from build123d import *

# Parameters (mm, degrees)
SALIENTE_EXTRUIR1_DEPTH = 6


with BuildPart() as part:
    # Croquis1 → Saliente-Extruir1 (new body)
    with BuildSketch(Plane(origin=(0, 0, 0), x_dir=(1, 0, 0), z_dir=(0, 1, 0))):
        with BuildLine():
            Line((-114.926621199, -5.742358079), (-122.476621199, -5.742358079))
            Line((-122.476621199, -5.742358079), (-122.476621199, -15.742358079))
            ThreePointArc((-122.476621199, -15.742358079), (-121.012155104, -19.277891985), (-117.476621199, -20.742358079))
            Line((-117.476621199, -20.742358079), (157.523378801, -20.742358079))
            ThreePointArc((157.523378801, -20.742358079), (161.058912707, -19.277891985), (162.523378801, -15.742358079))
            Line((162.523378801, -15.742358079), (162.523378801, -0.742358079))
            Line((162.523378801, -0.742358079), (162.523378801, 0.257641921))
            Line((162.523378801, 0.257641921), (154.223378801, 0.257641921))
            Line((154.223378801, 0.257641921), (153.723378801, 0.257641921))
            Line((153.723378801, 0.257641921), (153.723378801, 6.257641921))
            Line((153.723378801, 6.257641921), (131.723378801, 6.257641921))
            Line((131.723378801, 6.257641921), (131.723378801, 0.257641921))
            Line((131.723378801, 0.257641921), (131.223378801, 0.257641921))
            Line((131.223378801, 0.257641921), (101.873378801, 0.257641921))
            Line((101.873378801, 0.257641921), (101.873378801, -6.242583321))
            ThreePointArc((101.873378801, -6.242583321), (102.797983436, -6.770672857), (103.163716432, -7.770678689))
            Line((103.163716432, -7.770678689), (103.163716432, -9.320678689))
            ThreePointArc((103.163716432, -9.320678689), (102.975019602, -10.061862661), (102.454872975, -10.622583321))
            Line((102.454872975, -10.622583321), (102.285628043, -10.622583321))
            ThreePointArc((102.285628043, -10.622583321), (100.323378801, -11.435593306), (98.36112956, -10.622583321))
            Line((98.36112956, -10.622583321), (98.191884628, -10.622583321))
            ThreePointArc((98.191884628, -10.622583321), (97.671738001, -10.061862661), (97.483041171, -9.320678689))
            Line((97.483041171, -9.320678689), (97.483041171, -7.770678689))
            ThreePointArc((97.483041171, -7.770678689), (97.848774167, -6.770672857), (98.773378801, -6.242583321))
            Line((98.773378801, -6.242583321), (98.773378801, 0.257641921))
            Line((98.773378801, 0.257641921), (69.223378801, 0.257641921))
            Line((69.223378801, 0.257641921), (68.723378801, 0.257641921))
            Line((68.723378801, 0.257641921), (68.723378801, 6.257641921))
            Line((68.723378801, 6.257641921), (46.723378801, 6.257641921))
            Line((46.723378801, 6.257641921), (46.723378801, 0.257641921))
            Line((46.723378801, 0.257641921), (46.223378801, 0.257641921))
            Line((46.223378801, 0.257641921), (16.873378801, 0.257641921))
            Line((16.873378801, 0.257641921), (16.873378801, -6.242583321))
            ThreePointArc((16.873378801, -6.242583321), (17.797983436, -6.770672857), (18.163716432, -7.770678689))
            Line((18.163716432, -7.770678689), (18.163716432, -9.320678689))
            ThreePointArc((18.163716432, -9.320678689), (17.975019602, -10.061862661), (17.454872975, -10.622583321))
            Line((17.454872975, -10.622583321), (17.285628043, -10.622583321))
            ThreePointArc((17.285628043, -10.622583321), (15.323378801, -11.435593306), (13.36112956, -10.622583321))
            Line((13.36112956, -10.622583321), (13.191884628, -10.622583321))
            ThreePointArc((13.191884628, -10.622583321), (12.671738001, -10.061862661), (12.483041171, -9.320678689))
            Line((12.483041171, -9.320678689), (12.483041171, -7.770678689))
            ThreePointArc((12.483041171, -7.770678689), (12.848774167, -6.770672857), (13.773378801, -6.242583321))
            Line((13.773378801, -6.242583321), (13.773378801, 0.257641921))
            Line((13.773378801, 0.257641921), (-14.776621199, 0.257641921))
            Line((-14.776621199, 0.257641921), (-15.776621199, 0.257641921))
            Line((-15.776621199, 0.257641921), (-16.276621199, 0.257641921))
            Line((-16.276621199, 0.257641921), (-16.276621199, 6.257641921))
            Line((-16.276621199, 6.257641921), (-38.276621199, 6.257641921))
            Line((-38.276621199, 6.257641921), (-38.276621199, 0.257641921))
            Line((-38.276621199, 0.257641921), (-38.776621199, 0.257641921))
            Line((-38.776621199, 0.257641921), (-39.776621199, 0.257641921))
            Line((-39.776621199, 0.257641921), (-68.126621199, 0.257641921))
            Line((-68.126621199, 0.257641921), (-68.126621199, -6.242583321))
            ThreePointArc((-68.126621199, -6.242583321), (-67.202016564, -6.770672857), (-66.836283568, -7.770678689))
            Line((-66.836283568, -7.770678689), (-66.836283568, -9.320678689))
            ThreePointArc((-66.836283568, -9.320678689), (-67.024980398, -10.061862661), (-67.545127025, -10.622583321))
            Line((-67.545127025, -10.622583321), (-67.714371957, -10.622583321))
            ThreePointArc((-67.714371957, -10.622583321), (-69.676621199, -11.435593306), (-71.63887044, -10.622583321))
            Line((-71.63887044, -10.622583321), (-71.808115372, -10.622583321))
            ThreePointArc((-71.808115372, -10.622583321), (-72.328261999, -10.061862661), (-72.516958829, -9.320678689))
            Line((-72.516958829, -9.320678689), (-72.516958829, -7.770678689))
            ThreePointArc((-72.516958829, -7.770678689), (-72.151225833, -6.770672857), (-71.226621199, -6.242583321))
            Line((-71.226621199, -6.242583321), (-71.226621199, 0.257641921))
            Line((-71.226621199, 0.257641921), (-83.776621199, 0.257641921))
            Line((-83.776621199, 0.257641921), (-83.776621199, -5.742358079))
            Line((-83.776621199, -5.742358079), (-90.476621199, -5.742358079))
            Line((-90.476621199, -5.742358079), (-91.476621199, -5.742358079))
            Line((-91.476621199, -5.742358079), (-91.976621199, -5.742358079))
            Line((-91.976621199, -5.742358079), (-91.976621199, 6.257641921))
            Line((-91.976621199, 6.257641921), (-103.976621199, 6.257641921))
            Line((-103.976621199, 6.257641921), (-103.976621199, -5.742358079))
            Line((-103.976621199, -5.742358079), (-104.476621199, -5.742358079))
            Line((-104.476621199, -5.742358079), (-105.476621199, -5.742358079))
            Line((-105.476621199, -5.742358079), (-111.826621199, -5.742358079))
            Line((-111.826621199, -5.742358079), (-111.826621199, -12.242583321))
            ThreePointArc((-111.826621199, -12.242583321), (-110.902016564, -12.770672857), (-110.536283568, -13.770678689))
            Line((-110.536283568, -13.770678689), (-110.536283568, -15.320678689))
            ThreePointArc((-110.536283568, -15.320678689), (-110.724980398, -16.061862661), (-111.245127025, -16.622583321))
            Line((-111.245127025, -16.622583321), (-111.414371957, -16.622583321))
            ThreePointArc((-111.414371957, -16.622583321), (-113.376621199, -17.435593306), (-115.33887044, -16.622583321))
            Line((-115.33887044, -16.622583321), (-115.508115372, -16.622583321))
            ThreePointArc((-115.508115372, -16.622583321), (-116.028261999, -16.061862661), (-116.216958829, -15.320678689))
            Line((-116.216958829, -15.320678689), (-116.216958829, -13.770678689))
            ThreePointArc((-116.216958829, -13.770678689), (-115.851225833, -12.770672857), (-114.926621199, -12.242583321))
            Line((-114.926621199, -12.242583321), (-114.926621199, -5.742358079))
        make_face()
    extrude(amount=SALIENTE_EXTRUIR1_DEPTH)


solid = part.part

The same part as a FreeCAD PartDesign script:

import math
import FreeCAD as App
import Part
import Sketcher
from FreeCAD import Vector

doc = App.newDocument("Part")
params = doc.addObject("Spreadsheet::Sheet", "Params")
for row, (alias, value) in enumerate([
    ("sketch1_radius", "5 mm"),
    ("sketch1_width", "275 mm"),
    ("sketch1_width2", "22 mm"),
    ("sketch1_width3", "12 mm"),
    ("sketch1_height", "10 mm"),
    ("pad1_length", "6 mm"),
], start=1):
    params.set(f"A{row}", alias)
    params.set(f"B{row}", "=" + value)
    params.setAlias(f"B{row}", alias)

body = doc.addObject("PartDesign::Body", "Body")

# Sketch on XZ plane
sketch1 = body.newObject("Sketcher::SketchObject", "Sketch")
sketch1.AttachmentSupport = (doc.getObject("XZ_Plane"), [""])
sketch1.MapMode = "FlatFace"
sketch1.addGeometry([
    Part.LineSegment(Vector(-114.93, 5.74, 0), Vector(-122.48, 5.74, 0)),  # 0
    Part.LineSegment(Vector(-122.48, 5.74, 0), Vector(-122.48, 15.74, 0)),  # 1
    Part.ArcOfCircle(Part.Circle(Vector(-117.48, 15.74, 0), Vector(0, 0, 1), 5), math.radians(90), math.radians(180)),  # 2
    Part.LineSegment(Vector(-117.48, 20.74, 0), Vector(157.52, 20.74, 0)),  # 3
    Part.ArcOfCircle(Part.Circle(Vector(157.52, 15.74, 0), Vector(0, 0, 1), 5), math.radians(0), math.radians(90)),  # 4
    Part.LineSegment(Vector(162.52, 15.74, 0), Vector(162.52, -0.26, 0)),  # 5
    Part.LineSegment(Vector(162.52, -0.26, 0), Vector(153.72, -0.26, 0)),  # 6
    Part.LineSegment(Vector(153.72, -0.26, 0), Vector(153.72, -6.26, 0)),  # 7
    Part.LineSegment(Vector(153.72, -6.26, 0), Vector(131.72, -6.26, 0)),  # 8
    Part.LineSegment(Vector(131.72, -6.26, 0), Vector(131.72, -0.26, 0)),  # 9
    Part.LineSegment(Vector(131.72, -0.26, 0), Vector(101.87, -0.26, 0)),  # 10
    Part.LineSegment(Vector(101.87, -0.26, 0), Vector(101.87, 6.24, 0)),  # 11
    Part.ArcOfCircle(Part.Circle(Vector(101.61, 7.77, 0), Vector(0, 0, 1), 1.55), math.radians(-80), math.radians(0)),  # 12
    Part.LineSegment(Vector(103.16, 7.77, 0), Vector(103.16, 9.32, 0)),  # 13
    Part.ArcOfCircle(Part.Circle(Vector(101.61, 9.32, 0), Vector(0, 0, 1), 1.55), math.radians(0), math.radians(57)),  # 14
    Part.LineSegment(Vector(102.45, 10.62, 0), Vector(102.29, 10.62, 0)),  # 15
    Part.ArcOfCircle(Part.Circle(Vector(100.32, 8.66, 0), Vector(0, 0, 1), 2.77), math.radians(45), math.radians(135)),  # 16
    Part.LineSegment(Vector(98.36, 10.62, 0), Vector(98.19, 10.62, 0)),  # 17
    Part.ArcOfCircle(Part.Circle(Vector(99.03, 9.32, 0), Vector(0, 0, 1), 1.55), math.radians(123), math.radians(180)),  # 18
    Part.LineSegment(Vector(97.48, 9.32, 0), Vector(97.48, 7.77, 0)),  # 19
    Part.ArcOfCircle(Part.Circle(Vector(99.03, 7.77, 0), Vector(0, 0, 1), 1.55), math.radians(180), math.radians(260)),  # 20
    Part.LineSegment(Vector(98.77, 6.24, 0), Vector(98.77, -0.26, 0)),  # 21
    Part.LineSegment(Vector(98.77, -0.26, 0), Vector(68.72, -0.26, 0)),  # 22
    Part.LineSegment(Vector(68.72, -0.26, 0), Vector(68.72, -6.26, 0)),  # 23
    Part.LineSegment(Vector(68.72, -6.26, 0), Vector(46.72, -6.26, 0)),  # 24
    Part.LineSegment(Vector(46.72, -6.26, 0), Vector(46.72, -0.26, 0)),  # 25
    Part.LineSegment(Vector(46.72, -0.26, 0), Vector(16.87, -0.26, 0)),  # 26
    Part.LineSegment(Vector(16.87, -0.26, 0), Vector(16.87, 6.24, 0)),  # 27
    Part.ArcOfCircle(Part.Circle(Vector(16.61, 7.77, 0), Vector(0, 0, 1), 1.55), math.radians(-80), math.radians(0)),  # 28
    Part.LineSegment(Vector(18.16, 7.77, 0), Vector(18.16, 9.32, 0)),  # 29
    Part.ArcOfCircle(Part.Circle(Vector(16.61, 9.32, 0), Vector(0, 0, 1), 1.55), math.radians(0), math.radians(57)),  # 30
    Part.LineSegment(Vector(17.45, 10.62, 0), Vector(17.29, 10.62, 0)),  # 31
    Part.ArcOfCircle(Part.Circle(Vector(15.32, 8.66, 0), Vector(0, 0, 1), 2.77), math.radians(45), math.radians(135)),  # 32
    Part.LineSegment(Vector(13.36, 10.62, 0), Vector(13.19, 10.62, 0)),  # 33
    Part.ArcOfCircle(Part.Circle(Vector(14.03, 9.32, 0), Vector(0, 0, 1), 1.55), math.radians(123), math.radians(180)),  # 34
    Part.LineSegment(Vector(12.48, 9.32, 0), Vector(12.48, 7.77, 0)),  # 35
    Part.ArcOfCircle(Part.Circle(Vector(14.03, 7.77, 0), Vector(0, 0, 1), 1.55), math.radians(180), math.radians(260)),  # 36
    Part.LineSegment(Vector(13.77, 6.24, 0), Vector(13.77, -0.26, 0)),  # 37
    Part.LineSegment(Vector(13.77, -0.26, 0), Vector(-16.28, -0.26, 0)),  # 38
    Part.LineSegment(Vector(-16.28, -0.26, 0), Vector(-16.28, -6.26, 0)),  # 39
    Part.LineSegment(Vector(-16.28, -6.26, 0), Vector(-38.28, -6.26, 0)),  # 40
    Part.LineSegment(Vector(-38.28, -6.26, 0), Vector(-38.28, -0.26, 0)),  # 41
    Part.LineSegment(Vector(-38.28, -0.26, 0), Vector(-68.13, -0.26, 0)),  # 42
    Part.LineSegment(Vector(-68.13, -0.26, 0), Vector(-68.13, 6.24, 0)),  # 43
    Part.ArcOfCircle(Part.Circle(Vector(-68.39, 7.77, 0), Vector(0, 0, 1), 1.55), math.radians(-80), math.radians(0)),  # 44
    Part.LineSegment(Vector(-66.84, 7.77, 0), Vector(-66.84, 9.32, 0)),  # 45
    Part.ArcOfCircle(Part.Circle(Vector(-68.39, 9.32, 0), Vector(0, 0, 1), 1.55), math.radians(0), math.radians(57)),  # 46
    Part.LineSegment(Vector(-67.55, 10.62, 0), Vector(-67.71, 10.62, 0)),  # 47
    Part.ArcOfCircle(Part.Circle(Vector(-69.68, 8.66, 0), Vector(0, 0, 1), 2.77), math.radians(45), math.radians(135)),  # 48
    Part.LineSegment(Vector(-71.64, 10.62, 0), Vector(-71.81, 10.62, 0)),  # 49
    Part.ArcOfCircle(Part.Circle(Vector(-70.97, 9.32, 0), Vector(0, 0, 1), 1.55), math.radians(123), math.radians(180)),  # 50
    Part.LineSegment(Vector(-72.52, 9.32, 0), Vector(-72.52, 7.77, 0)),  # 51
    Part.ArcOfCircle(Part.Circle(Vector(-70.97, 7.77, 0), Vector(0, 0, 1), 1.55), math.radians(180), math.radians(260)),  # 52
    Part.LineSegment(Vector(-71.23, 6.24, 0), Vector(-71.23, -0.26, 0)),  # 53
    Part.LineSegment(Vector(-71.23, -0.26, 0), Vector(-83.78, -0.26, 0)),  # 54
    Part.LineSegment(Vector(-83.78, -0.26, 0), Vector(-83.78, 5.74, 0)),  # 55
    Part.LineSegment(Vector(-83.78, 5.74, 0), Vector(-91.98, 5.74, 0)),  # 56
    Part.LineSegment(Vector(-91.98, 5.74, 0), Vector(-91.98, -6.26, 0)),  # 57
    Part.LineSegment(Vector(-91.98, -6.26, 0), Vector(-103.98, -6.26, 0)),  # 58
    Part.LineSegment(Vector(-103.98, -6.26, 0), Vector(-103.98, 5.74, 0)),  # 59
    Part.LineSegment(Vector(-103.98, 5.74, 0), Vector(-111.83, 5.74, 0)),  # 60
    Part.LineSegment(Vector(-111.83, 5.74, 0), Vector(-111.83, 12.24, 0)),  # 61
    Part.ArcOfCircle(Part.Circle(Vector(-112.09, 13.77, 0), Vector(0, 0, 1), 1.55), math.radians(-80), math.radians(0)),  # 62
    Part.LineSegment(Vector(-110.54, 13.77, 0), Vector(-110.54, 15.32, 0)),  # 63
    Part.ArcOfCircle(Part.Circle(Vector(-112.09, 15.32, 0), Vector(0, 0, 1), 1.55), math.radians(0), math.radians(57)),  # 64
    Part.LineSegment(Vector(-111.25, 16.62, 0), Vector(-111.41, 16.62, 0)),  # 65
    Part.ArcOfCircle(Part.Circle(Vector(-113.38, 14.66, 0), Vector(0, 0, 1), 2.77), math.radians(45), math.radians(135)),  # 66
    Part.LineSegment(Vector(-115.34, 16.62, 0), Vector(-115.51, 16.62, 0)),  # 67
    Part.ArcOfCircle(Part.Circle(Vector(-114.67, 15.32, 0), Vector(0, 0, 1), 1.55), math.radians(123), math.radians(180)),  # 68
    Part.LineSegment(Vector(-116.22, 15.32, 0), Vector(-116.22, 13.77, 0)),  # 69
    Part.ArcOfCircle(Part.Circle(Vector(-114.67, 13.77, 0), Vector(0, 0, 1), 1.55), math.radians(180), math.radians(260)),  # 70
    Part.LineSegment(Vector(-114.93, 12.24, 0), Vector(-114.93, 5.74, 0)),  # 71
], False)
sketch1.addConstraint([
    Sketcher.Constraint("Coincident", 0, 2, 1, 1),
    Sketcher.Constraint("Tangent", 1, 2, 2, 2),
    Sketcher.Constraint("Tangent", 2, 1, 3, 1),
    Sketcher.Constraint("Tangent", 3, 2, 4, 2),
    Sketcher.Constraint("Tangent", 4, 1, 5, 1),
    Sketcher.Constraint("Coincident", 5, 2, 6, 1),
    Sketcher.Constraint("Coincident", 6, 2, 7, 1),
    Sketcher.Constraint("Coincident", 7, 2, 8, 1),
    Sketcher.Constraint("Coincident", 8, 2, 9, 1),
    Sketcher.Constraint("Coincident", 9, 2, 10, 1),
    Sketcher.Constraint("Coincident", 10, 2, 11, 1),
    Sketcher.Constraint("Coincident", 11, 2, 12, 1),
    Sketcher.Constraint("Tangent", 12, 2, 13, 1),
    Sketcher.Constraint("Tangent", 13, 2, 14, 1),
    Sketcher.Constraint("Coincident", 14, 2, 15, 1),
    Sketcher.Constraint("Coincident", 15, 2, 16, 1),
    Sketcher.Constraint("Coincident", 16, 2, 17, 1),
    Sketcher.Constraint("Coincident", 17, 2, 18, 1),
    Sketcher.Constraint("Tangent", 18, 2, 19, 1),
    Sketcher.Constraint("Tangent", 19, 2, 20, 1),
    Sketcher.Constraint("Coincident", 20, 2, 21, 1),
    Sketcher.Constraint("Coincident", 21, 2, 22, 1),
    Sketcher.Constraint("Coincident", 22, 2, 23, 1),
    Sketcher.Constraint("Coincident", 23, 2, 24, 1),
    Sketcher.Constraint("Coincident", 24, 2, 25, 1),
    Sketcher.Constraint("Coincident", 25, 2, 26, 1),
    Sketcher.Constraint("Coincident", 26, 2, 27, 1),
    Sketcher.Constraint("Coincident", 27, 2, 28, 1),
    Sketcher.Constraint("Tangent", 28, 2, 29, 1),
    Sketcher.Constraint("Tangent", 29, 2, 30, 1),
    Sketcher.Constraint("Coincident", 30, 2, 31, 1),
    Sketcher.Constraint("Coincident", 31, 2, 32, 1),
    Sketcher.Constraint("Coincident", 32, 2, 33, 1),
    Sketcher.Constraint("Coincident", 33, 2, 34, 1),
    Sketcher.Constraint("Tangent", 34, 2, 35, 1),
    Sketcher.Constraint("Tangent", 35, 2, 36, 1),
    Sketcher.Constraint("Coincident", 36, 2, 37, 1),
    Sketcher.Constraint("Coincident", 37, 2, 38, 1),
    Sketcher.Constraint("Coincident", 38, 2, 39, 1),
    Sketcher.Constraint("Coincident", 39, 2, 40, 1),
    Sketcher.Constraint("Coincident", 40, 2, 41, 1),
    Sketcher.Constraint("Coincident", 41, 2, 42, 1),
    Sketcher.Constraint("Coincident", 42, 2, 43, 1),
    Sketcher.Constraint("Coincident", 43, 2, 44, 1),
    Sketcher.Constraint("Tangent", 44, 2, 45, 1),
    Sketcher.Constraint("Tangent", 45, 2, 46, 1),
    Sketcher.Constraint("Coincident", 46, 2, 47, 1),
    Sketcher.Constraint("Coincident", 47, 2, 48, 1),
    Sketcher.Constraint("Coincident", 48, 2, 49, 1),
    Sketcher.Constraint("Coincident", 49, 2, 50, 1),
    Sketcher.Constraint("Tangent", 50, 2, 51, 1),
    Sketcher.Constraint("Tangent", 51, 2, 52, 1),
    Sketcher.Constraint("Coincident", 52, 2, 53, 1),
    Sketcher.Constraint("Coincident", 53, 2, 54, 1),
    Sketcher.Constraint("Coincident", 54, 2, 55, 1),
    Sketcher.Constraint("Coincident", 55, 2, 56, 1),
    Sketcher.Constraint("Coincident", 56, 2, 57, 1),
    Sketcher.Constraint("Coincident", 57, 2, 58, 1),
    Sketcher.Constraint("Coincident", 58, 2, 59, 1),
    Sketcher.Constraint("Coincident", 59, 2, 60, 1),
    Sketcher.Constraint("Coincident", 60, 2, 61, 1),
    Sketcher.Constraint("Coincident", 61, 2, 62, 1),
    Sketcher.Constraint("Tangent", 62, 2, 63, 1),
    Sketcher.Constraint("Tangent", 63, 2, 64, 1),
    Sketcher.Constraint("Coincident", 64, 2, 65, 1),
    Sketcher.Constraint("Coincident", 65, 2, 66, 1),
    Sketcher.Constraint("Coincident", 66, 2, 67, 1),
    Sketcher.Constraint("Coincident", 67, 2, 68, 1),
    Sketcher.Constraint("Tangent", 68, 2, 69, 1),
    Sketcher.Constraint("Tangent", 69, 2, 70, 1),
    Sketcher.Constraint("Coincident", 70, 2, 71, 1),
    Sketcher.Constraint("Coincident", 71, 2, 0, 1),
    Sketcher.Constraint("Horizontal", 0),
    Sketcher.Constraint("Vertical", 1),
    Sketcher.Constraint("Horizontal", 3),
    Sketcher.Constraint("Vertical", 5),
    Sketcher.Constraint("Horizontal", 6),
    Sketcher.Constraint("Vertical", 7),
    Sketcher.Constraint("Horizontal", 8),
    Sketcher.Constraint("Vertical", 9),
    Sketcher.Constraint("Horizontal", 10),
    Sketcher.Constraint("Vertical", 11),
    Sketcher.Constraint("Vertical", 13),
    Sketcher.Constraint("Horizontal", 15),
    Sketcher.Constraint("Horizontal", 17),
    Sketcher.Constraint("Vertical", 19),
    Sketcher.Constraint("Vertical", 21),
    Sketcher.Constraint("Horizontal", 22),
    Sketcher.Constraint("Vertical", 23),
    Sketcher.Constraint("Horizontal", 24),
    Sketcher.Constraint("Vertical", 25),
    Sketcher.Constraint("Horizontal", 26),
    Sketcher.Constraint("Vertical", 27),
    Sketcher.Constraint("Vertical", 29),
    Sketcher.Constraint("Horizontal", 31),
    Sketcher.Constraint("Horizontal", 33),
    Sketcher.Constraint("Vertical", 35),
    Sketcher.Constraint("Vertical", 37),
    Sketcher.Constraint("Horizontal", 38),
    Sketcher.Constraint("Vertical", 39),
    Sketcher.Constraint("Horizontal", 40),
    Sketcher.Constraint("Vertical", 41),
    Sketcher.Constraint("Horizontal", 42),
    Sketcher.Constraint("Vertical", 43),
    Sketcher.Constraint("Vertical", 45),
    Sketcher.Constraint("Horizontal", 47),
    Sketcher.Constraint("Horizontal", 49),
    Sketcher.Constraint("Vertical", 51),
    Sketcher.Constraint("Vertical", 53),
    Sketcher.Constraint("Horizontal", 54),
    Sketcher.Constraint("Vertical", 55),
    Sketcher.Constraint("Horizontal", 56),
    Sketcher.Constraint("Vertical", 57),
    Sketcher.Constraint("Horizontal", 58),
    Sketcher.Constraint("Vertical", 59),
    Sketcher.Constraint("Horizontal", 60),
    Sketcher.Constraint("Vertical", 61),
    Sketcher.Constraint("Vertical", 63),
    Sketcher.Constraint("Horizontal", 65),
    Sketcher.Constraint("Horizontal", 67),
    Sketcher.Constraint("Vertical", 69),
    Sketcher.Constraint("Vertical", 71),
    Sketcher.Constraint("Equal", 2, 4),
    Sketcher.Constraint("Equal", 12, 14),
    Sketcher.Constraint("Equal", 14, 18),
    Sketcher.Constraint("Equal", 18, 20),
    Sketcher.Constraint("Equal", 20, 28),
    Sketcher.Constraint("Equal", 28, 30),
    Sketcher.Constraint("Equal", 16, 32),
    Sketcher.Constraint("Equal", 30, 34),
    Sketcher.Constraint("Equal", 34, 36),
    Sketcher.Constraint("Equal", 36, 44),
    Sketcher.Constraint("Equal", 44, 46),
    Sketcher.Constraint("Equal", 32, 48),
    Sketcher.Constraint("Equal", 46, 50),
    Sketcher.Constraint("Equal", 50, 52),
    Sketcher.Constraint("Equal", 52, 62),
    Sketcher.Constraint("Equal", 62, 64),
    Sketcher.Constraint("Equal", 48, 66),
    Sketcher.Constraint("Equal", 64, 68),
    Sketcher.Constraint("Equal", 68, 70),
    Sketcher.Constraint("Horizontal", 14, 3, 18, 3),
    Sketcher.Constraint("Horizontal", 12, 3, 20, 3),
    Sketcher.Constraint("Horizontal", 20, 3, 28, 3),
    Sketcher.Constraint("Horizontal", 18, 3, 30, 3),
    Sketcher.Constraint("Horizontal", 16, 3, 32, 3),
    Sketcher.Constraint("Horizontal", 30, 3, 34, 3),
    Sketcher.Constraint("Horizontal", 28, 3, 36, 3),
    Sketcher.Constraint("Horizontal", 36, 3, 44, 3),
    Sketcher.Constraint("Horizontal", 34, 3, 46, 3),
    Sketcher.Constraint("Horizontal", 32, 3, 48, 3),
    Sketcher.Constraint("Horizontal", 46, 3, 50, 3),
    Sketcher.Constraint("Horizontal", 44, 3, 52, 3),
    Sketcher.Constraint("Horizontal", 64, 3, 68, 3),
    Sketcher.Constraint("Horizontal", 62, 3, 70, 3),
    Sketcher.Constraint("Horizontal", 6, 2, 9, 2),
    Sketcher.Constraint("Horizontal", 15, 2, 16, 2),
    Sketcher.Constraint("Horizontal", 11, 2, 20, 2),
    Sketcher.Constraint("Horizontal", 10, 2, 21, 2),
    Sketcher.Constraint("Horizontal", 8, 2, 23, 2),
    Sketcher.Constraint("Horizontal", 22, 2, 25, 2),
    Sketcher.Constraint("Horizontal", 20, 2, 27, 2),
    Sketcher.Constraint("Horizontal", 17, 2, 30, 2),
    Sketcher.Constraint("Horizontal", 31, 2, 32, 2),
    Sketcher.Constraint("Horizontal", 27, 2, 36, 2),
    Sketcher.Constraint("Horizontal", 26, 2, 37, 2),
    Sketcher.Constraint("Horizontal", 24, 2, 39, 2),
    Sketcher.Constraint("Horizontal", 38, 2, 41, 2),
    Sketcher.Constraint("Horizontal", 36, 2, 43, 2),
    Sketcher.Constraint("Horizontal", 33, 2, 46, 2),
    Sketcher.Constraint("Horizontal", 47, 2, 48, 2),
    Sketcher.Constraint("Horizontal", 43, 2, 52, 2),
    Sketcher.Constraint("Horizontal", 42, 2, 53, 2),
    Sketcher.Constraint("Horizontal", 0, 2, 55, 2),
    Sketcher.Constraint("Horizontal", 40, 2, 57, 2),
    Sketcher.Constraint("Horizontal", 56, 2, 59, 2),
    Sketcher.Constraint("Horizontal", 65, 2, 66, 2),
    Sketcher.Constraint("Horizontal", 61, 2, 70, 2),
    Sketcher.Constraint("Equal", 15, 17),
    Sketcher.Constraint("Equal", 8, 24),
    Sketcher.Constraint("Equal", 10, 26),
    Sketcher.Constraint("Equal", 17, 31),
    Sketcher.Constraint("Equal", 31, 33),
    Sketcher.Constraint("Equal", 22, 38),
    Sketcher.Constraint("Equal", 24, 40),
    Sketcher.Constraint("Equal", 26, 42),
    Sketcher.Constraint("Equal", 33, 47),
    Sketcher.Constraint("Equal", 47, 49),
    Sketcher.Constraint("Equal", 49, 65),
    Sketcher.Constraint("Equal", 65, 67),
    Sketcher.Constraint("Equal", 41, 55),
    Sketcher.Constraint("Equal", 58, 57),
    Sketcher.Constraint("Equal", 53, 61),
    Sketcher.Constraint("Equal", 51, 63),
    Sketcher.Constraint("Radius", 2, 5.0),
    Sketcher.Constraint("DistanceX", 3, 1, 3, 2, 275.0),
    Sketcher.Constraint("DistanceX", 8, 2, 8, 1, 22.0),
    Sketcher.Constraint("DistanceX", 58, 2, 58, 1, 12.0),
    Sketcher.Constraint("DistanceY", 1, 1, 1, 2, 10.0),
    Sketcher.Constraint("Radius", 12, 1.55),
    Sketcher.Constraint("DistanceX", 6, 2, 6, 1, 8.8),
    Sketcher.Constraint("DistanceX", 56, 2, 56, 1, 8.2),
    Sketcher.Constraint("DistanceX", 0, 2, 0, 1, 7.55),
    Sketcher.Constraint("DistanceX", 10, 2, 10, 1, 29.85),
    Sketcher.Constraint("DistanceX", 22, 2, 22, 1, 30.05),
    Sketcher.Constraint("DistanceX", 54, 2, 54, 1, 12.55),
    Sketcher.Constraint("DistanceX", 60, 2, 60, 1, 7.85),
    Sketcher.Constraint("DistanceY", 13, 1, 13, 2, 1.55),
    Sketcher.Constraint("Radius", 16, 2.774509),
    Sketcher.Constraint("DistanceX", 15, 2, 15, 1, 0.169245),
    Sketcher.Constraint("DistanceY", 11, 1, 11, 2, 6.500225),
    Sketcher.Constraint("DistanceX", 2, 3, -1, 1, 117.476621),
    Sketcher.Constraint("DistanceY", -1, 1, 2, 3, 15.742358),
    Sketcher.Constraint("DistanceY", -1, 1, 12, 3, 7.770679),
    Sketcher.Constraint("DistanceX", -1, 1, 16, 3, 100.323379),
    Sketcher.Constraint("DistanceY", -1, 1, 62, 3, 13.770679),
    Sketcher.Constraint("DistanceX", -1, 1, 15, 2, 102.285628),
    Sketcher.Constraint("DistanceX", 65, 2, -1, 1, 111.414372),
])
sketch1.setExpression("Constraints[194]", "Params.sketch1_radius")
sketch1.setExpression("Constraints[195]", "Params.sketch1_width")
sketch1.setExpression("Constraints[196]", "Params.sketch1_width2")
sketch1.setExpression("Constraints[197]", "Params.sketch1_width3")
sketch1.setExpression("Constraints[198]", "Params.sketch1_height")
pad1 = body.newObject("PartDesign::Pad", "Pad")
pad1.Profile = sketch1
pad1.setExpression("Length", "Params.pad1_length")
pad1.Reversed = True

doc.recompute()
